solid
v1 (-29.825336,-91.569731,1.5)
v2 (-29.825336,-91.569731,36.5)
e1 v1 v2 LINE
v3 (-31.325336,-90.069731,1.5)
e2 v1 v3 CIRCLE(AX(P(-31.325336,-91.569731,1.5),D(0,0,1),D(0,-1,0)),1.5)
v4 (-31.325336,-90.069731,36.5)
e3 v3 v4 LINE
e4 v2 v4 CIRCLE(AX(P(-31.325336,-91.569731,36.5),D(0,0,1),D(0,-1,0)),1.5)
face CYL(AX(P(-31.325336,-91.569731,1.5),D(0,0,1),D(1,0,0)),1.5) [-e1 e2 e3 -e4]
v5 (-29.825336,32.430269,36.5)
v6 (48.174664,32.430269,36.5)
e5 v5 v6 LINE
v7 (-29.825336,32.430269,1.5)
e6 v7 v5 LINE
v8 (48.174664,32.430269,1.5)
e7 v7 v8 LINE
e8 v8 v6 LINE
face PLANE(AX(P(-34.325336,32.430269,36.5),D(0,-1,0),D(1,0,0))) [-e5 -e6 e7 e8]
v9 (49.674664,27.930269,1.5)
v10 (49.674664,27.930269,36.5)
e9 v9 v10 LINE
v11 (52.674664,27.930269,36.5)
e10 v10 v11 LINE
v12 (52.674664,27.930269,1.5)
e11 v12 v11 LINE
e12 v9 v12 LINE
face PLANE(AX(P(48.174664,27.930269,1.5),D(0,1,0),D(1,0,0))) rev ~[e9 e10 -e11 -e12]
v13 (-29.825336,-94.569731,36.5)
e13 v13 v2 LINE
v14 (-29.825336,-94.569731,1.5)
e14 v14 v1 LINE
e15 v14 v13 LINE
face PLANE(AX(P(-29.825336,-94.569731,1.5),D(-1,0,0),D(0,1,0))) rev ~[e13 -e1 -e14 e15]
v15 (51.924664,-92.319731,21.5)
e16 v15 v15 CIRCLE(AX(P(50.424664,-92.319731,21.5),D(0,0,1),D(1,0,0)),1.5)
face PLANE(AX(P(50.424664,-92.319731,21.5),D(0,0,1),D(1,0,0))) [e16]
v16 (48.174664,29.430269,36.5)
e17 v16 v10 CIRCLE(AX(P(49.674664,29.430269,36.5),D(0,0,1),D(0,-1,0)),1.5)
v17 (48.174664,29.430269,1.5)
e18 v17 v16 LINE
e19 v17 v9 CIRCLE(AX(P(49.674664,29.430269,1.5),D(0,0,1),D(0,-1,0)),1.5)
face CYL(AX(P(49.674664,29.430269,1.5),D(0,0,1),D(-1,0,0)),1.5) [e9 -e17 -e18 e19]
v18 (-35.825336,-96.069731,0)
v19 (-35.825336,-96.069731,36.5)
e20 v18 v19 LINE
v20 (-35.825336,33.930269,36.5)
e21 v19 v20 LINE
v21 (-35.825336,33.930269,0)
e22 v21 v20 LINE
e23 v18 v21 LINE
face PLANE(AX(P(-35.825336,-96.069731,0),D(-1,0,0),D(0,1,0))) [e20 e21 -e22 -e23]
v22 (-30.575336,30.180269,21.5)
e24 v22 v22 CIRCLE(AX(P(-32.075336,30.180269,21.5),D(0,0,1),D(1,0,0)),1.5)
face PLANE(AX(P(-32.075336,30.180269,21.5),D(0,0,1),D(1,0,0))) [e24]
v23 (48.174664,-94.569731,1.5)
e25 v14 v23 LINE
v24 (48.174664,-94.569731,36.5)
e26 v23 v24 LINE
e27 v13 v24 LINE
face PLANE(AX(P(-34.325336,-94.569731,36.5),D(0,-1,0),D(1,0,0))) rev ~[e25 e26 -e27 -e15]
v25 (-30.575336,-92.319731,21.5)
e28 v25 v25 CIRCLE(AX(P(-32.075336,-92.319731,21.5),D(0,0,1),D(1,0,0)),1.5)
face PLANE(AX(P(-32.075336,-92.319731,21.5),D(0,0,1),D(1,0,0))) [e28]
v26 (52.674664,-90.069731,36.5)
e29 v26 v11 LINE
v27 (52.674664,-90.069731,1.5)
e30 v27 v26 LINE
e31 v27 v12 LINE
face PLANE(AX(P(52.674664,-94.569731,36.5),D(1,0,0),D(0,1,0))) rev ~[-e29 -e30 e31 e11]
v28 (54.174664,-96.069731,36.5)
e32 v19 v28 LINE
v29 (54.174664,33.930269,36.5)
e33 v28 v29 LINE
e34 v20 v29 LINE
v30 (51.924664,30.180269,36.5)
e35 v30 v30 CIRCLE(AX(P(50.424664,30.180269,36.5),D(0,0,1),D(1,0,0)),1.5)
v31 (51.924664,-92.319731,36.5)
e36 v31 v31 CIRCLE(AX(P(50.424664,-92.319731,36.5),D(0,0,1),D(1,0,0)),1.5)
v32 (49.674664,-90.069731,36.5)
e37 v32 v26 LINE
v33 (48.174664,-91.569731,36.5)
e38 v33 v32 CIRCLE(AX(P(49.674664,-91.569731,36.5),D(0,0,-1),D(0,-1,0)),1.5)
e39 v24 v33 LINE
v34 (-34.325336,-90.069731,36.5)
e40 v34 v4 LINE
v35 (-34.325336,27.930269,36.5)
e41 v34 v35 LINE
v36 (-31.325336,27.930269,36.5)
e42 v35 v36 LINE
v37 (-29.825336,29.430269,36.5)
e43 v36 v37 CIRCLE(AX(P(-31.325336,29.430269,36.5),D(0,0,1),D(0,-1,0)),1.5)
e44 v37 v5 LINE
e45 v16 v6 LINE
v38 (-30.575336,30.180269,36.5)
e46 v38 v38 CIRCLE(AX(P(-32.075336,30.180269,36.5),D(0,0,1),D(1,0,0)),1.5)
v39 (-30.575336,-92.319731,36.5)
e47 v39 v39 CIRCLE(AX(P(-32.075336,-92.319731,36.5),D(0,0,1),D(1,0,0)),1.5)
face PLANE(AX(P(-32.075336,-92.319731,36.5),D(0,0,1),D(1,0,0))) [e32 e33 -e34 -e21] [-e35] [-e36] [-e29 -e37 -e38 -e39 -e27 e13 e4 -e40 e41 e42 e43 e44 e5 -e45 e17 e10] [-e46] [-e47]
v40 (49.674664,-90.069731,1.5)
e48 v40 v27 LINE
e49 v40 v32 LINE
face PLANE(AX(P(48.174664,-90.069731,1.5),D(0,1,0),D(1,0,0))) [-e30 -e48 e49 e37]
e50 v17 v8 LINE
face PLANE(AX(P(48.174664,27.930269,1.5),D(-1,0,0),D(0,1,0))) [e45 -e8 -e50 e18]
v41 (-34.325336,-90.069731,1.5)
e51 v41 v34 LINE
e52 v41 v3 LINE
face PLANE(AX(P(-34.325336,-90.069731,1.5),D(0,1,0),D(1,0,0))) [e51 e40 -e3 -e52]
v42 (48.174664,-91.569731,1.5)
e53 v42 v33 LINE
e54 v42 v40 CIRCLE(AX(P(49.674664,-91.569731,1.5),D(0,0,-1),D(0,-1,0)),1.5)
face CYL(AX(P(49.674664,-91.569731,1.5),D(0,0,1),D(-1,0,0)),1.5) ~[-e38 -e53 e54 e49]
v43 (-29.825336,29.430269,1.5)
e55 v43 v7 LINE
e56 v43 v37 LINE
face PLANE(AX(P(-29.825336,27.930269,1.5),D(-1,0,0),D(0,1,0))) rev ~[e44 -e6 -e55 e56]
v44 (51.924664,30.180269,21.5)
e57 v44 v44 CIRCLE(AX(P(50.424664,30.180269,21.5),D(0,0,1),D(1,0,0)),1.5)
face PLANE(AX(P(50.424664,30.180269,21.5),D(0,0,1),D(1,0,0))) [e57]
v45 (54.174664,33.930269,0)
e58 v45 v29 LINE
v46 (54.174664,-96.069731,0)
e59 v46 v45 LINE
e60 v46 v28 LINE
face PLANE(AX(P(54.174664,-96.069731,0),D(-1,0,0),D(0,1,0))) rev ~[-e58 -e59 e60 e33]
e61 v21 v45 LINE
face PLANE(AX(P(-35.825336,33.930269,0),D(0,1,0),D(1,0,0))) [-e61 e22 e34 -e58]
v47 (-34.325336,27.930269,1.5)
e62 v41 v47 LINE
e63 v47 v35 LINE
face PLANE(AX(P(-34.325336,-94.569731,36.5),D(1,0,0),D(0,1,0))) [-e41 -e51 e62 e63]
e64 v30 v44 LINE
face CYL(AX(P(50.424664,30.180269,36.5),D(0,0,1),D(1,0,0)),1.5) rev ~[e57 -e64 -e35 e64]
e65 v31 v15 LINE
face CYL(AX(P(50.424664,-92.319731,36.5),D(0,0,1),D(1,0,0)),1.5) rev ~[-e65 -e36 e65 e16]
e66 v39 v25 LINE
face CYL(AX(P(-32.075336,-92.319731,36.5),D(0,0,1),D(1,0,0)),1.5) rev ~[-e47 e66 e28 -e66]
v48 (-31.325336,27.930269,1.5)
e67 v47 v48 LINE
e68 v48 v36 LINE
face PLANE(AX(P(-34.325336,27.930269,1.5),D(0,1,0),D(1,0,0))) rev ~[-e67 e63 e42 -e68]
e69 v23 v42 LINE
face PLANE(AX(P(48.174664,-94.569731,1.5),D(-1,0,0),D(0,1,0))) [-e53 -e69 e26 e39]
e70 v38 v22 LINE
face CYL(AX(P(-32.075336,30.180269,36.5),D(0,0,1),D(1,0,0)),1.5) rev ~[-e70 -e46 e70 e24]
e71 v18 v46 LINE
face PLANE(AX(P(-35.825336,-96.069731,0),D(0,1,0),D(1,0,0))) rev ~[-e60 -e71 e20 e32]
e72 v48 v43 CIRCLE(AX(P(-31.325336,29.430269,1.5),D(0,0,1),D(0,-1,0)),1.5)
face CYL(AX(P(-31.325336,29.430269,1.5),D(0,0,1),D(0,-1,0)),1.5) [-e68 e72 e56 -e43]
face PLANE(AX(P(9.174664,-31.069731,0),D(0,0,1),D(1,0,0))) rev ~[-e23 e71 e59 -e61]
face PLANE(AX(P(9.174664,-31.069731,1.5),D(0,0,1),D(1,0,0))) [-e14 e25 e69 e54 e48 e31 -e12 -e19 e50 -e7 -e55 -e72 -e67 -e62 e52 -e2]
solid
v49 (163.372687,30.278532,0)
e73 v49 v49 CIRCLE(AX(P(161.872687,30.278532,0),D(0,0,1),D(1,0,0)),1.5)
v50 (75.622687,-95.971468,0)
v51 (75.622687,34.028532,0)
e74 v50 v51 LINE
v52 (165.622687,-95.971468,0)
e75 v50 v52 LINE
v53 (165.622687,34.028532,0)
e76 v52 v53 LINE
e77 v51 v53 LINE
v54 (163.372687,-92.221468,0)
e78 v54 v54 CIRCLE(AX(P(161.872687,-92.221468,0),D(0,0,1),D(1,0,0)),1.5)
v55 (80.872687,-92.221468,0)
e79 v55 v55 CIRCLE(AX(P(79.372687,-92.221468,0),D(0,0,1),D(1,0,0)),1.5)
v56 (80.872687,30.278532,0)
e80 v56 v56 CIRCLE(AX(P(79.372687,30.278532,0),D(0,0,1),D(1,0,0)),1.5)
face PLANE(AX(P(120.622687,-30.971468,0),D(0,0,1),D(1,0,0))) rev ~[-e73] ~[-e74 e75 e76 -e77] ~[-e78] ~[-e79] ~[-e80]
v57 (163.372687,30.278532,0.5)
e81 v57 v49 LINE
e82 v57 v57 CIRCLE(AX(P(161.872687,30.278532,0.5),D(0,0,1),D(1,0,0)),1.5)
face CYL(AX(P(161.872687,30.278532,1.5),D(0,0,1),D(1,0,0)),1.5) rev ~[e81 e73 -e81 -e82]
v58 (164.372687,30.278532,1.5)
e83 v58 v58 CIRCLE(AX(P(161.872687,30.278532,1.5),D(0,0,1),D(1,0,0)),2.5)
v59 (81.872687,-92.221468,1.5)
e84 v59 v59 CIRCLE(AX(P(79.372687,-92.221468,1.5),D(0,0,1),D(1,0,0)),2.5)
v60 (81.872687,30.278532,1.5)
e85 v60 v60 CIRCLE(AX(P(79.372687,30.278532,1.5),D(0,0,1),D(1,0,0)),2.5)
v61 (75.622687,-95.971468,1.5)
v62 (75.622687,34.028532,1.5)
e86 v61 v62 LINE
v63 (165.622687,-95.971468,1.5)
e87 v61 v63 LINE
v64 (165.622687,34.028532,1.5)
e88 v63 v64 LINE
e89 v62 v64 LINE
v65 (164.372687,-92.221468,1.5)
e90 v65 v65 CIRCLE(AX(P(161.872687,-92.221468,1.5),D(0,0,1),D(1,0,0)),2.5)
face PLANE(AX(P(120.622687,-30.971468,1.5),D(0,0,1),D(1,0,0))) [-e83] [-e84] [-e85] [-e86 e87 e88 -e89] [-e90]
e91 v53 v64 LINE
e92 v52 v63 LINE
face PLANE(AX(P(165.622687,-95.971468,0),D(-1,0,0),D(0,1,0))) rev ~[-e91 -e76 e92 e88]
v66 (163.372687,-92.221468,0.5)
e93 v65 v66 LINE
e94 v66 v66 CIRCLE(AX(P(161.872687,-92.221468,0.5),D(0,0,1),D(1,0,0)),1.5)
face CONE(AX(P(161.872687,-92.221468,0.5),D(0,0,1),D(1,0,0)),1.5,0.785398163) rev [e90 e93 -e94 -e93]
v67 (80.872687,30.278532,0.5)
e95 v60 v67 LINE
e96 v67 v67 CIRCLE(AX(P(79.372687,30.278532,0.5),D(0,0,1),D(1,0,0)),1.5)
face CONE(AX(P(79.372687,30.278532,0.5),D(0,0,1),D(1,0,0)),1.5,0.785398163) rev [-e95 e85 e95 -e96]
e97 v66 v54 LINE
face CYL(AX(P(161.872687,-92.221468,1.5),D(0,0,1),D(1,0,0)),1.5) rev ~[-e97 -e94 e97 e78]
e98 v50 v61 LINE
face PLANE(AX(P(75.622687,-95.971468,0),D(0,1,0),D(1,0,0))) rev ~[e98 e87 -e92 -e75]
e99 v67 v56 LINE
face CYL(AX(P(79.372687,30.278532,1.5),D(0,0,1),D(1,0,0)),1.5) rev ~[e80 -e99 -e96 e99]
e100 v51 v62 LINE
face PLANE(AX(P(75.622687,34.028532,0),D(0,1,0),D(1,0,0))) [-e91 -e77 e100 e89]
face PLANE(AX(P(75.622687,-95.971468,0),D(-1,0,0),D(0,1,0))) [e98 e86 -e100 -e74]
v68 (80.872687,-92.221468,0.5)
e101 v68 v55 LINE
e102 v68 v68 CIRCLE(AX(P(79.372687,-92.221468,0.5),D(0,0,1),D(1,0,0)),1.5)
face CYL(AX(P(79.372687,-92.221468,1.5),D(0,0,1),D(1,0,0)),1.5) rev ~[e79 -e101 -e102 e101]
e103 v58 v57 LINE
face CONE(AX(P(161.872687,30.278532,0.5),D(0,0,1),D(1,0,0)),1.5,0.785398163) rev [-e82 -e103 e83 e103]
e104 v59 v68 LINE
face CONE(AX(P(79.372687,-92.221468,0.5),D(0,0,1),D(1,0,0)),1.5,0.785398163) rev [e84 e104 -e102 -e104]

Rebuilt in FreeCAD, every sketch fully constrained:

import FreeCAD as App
import Part
import Sketcher
from FreeCAD import Vector


def edges_at(feature, points):
    """Names of the edges that pass closest to the given points."""
    edges = feature.Shape.Edges
    near = lambda p: min(range(len(edges)), key=lambda i: edges[i].distToShape(Part.Vertex(*p))[0])
    return sorted({f"Edge{near(p) + 1}" for p in points})


def add_polygon(sketch, points):
    """Adds a closed chain of lines whose ends are joined by coincident constraints."""
    first, n = sketch.GeometryCount, len(points)
    for a, b in zip(points, points[1:] + points[:1]):
        sketch.addGeometry(Part.LineSegment(App.Vector(*a, 0), App.Vector(*b, 0)), False)
    for i in range(n):
        sketch.addConstraint(Sketcher.Constraint("Coincident", first + i, 2, first + (i + 1) % n, 1))

doc = App.newDocument("Part")
body = doc.addObject("PartDesign::Body", "Body")

# Sketch on XY plane
sketch1 = body.newObject("Sketcher::SketchObject", "Sketch")
sketch1.AttachmentSupport = (doc.getObject("XY_Plane"), [""])
sketch1.MapMode = "FlatFace"
add_polygon(sketch1, [(-35.825336, 33.930269), (-35.825336, -96.069731), (54.174664, -96.069731), (54.174664, 33.930269)])  # lines 0-3
sketch1.addConstraint(Sketcher.Constraint("Vertical", 0))
sketch1.addConstraint(Sketcher.Constraint("Horizontal", 1))
sketch1.addConstraint(Sketcher.Constraint("Vertical", 2))
sketch1.addConstraint(Sketcher.Constraint("Horizontal", 3))
sketch1.addConstraint(Sketcher.Constraint("DistanceX", 1, 1, 1, 2, 90.0))
sketch1.addConstraint(Sketcher.Constraint("DistanceY", 0, 2, 0, 1, 130.0))
sketch1.addConstraint(Sketcher.Constraint("DistanceY", 0, 2, -1, 1, 96.069731))
sketch1.addConstraint(Sketcher.Constraint("DistanceX", 0, 2, -1, 1, 35.825336))
pad1 = body.newObject("PartDesign::Pad", "Pad")
pad1.Profile = sketch1
pad1.Length = 36.5

# Sketch on XY plane
sketch2 = body.newObject("Sketcher::SketchObject", "Sketch001")
sketch2.AttachmentSupport = (doc.getObject("XY_Plane"), [""])
sketch2.MapMode = "FlatFace"
sketch2.AttachmentOffset = App.Placement(Vector(0, 0, 36.5), App.Rotation())
add_polygon(sketch2, [(-34.325336, 32.430269), (-34.325336, -94.569731), (52.674664, -94.569731), (52.674664, 32.430269)])  # lines 0-3
sketch2.addConstraint(Sketcher.Constraint("Vertical", 0))
sketch2.addConstraint(Sketcher.Constraint("Horizontal", 1))
sketch2.addConstraint(Sketcher.Constraint("Vertical", 2))
sketch2.addConstraint(Sketcher.Constraint("Horizontal", 3))
sketch2.addConstraint(Sketcher.Constraint("DistanceX", 1, 1, 1, 2, 87.0))
sketch2.addConstraint(Sketcher.Constraint("DistanceY", 0, 2, 0, 1, 127.0))
sketch2.addConstraint(Sketcher.Constraint("DistanceY", 0, 2, -1, 1, 94.569731))
sketch2.addConstraint(Sketcher.Constraint("DistanceX", 0, 2, -1, 1, 34.325336))
pocket1 = body.newObject("PartDesign::Pocket", "Pocket")
pocket1.Profile = sketch2
pocket1.Length = 35

# Sketch on XY plane
sketch3 = body.newObject("Sketcher::SketchObject", "Sketch002")
sketch3.AttachmentSupport = (doc.getObject("XY_Plane"), [""])
sketch3.MapMode = "FlatFace"
sketch3.AttachmentOffset = App.Placement(Vector(0, 0, 1.5), App.Rotation())
add_polygon(sketch3, [(-34.325336, -90.069731), (-34.325336, -94.569731), (-29.825336, -94.569731), (-29.825336, -90.069731)])  # lines 0-3
add_polygon(sketch3, [(48.174664, -90.069731), (48.174664, -94.569731), (52.674664, -94.569731), (52.674664, -90.069731)])  # lines 4-7
add_polygon(sketch3, [(48.174664, 32.430269), (48.174664, 27.930269), (52.674664, 27.930269), (52.674664, 32.430269)])  # lines 8-11
add_polygon(sketch3, [(-34.325336, 32.430269), (-34.325336, 27.930269), (-29.825336, 27.930269), (-29.825336, 32.430269)])  # lines 12-15
sketch3.addConstraint(Sketcher.Constraint("Vertical", 0))
sketch3.addConstraint(Sketcher.Constraint("Horizontal", 1))
sketch3.addConstraint(Sketcher.Constraint("Vertical", 2))
sketch3.addConstraint(Sketcher.Constraint("Horizontal", 3))
sketch3.addConstraint(Sketcher.Constraint("Vertical", 4))
sketch3.addConstraint(Sketcher.Constraint("Horizontal", 5))
sketch3.addConstraint(Sketcher.Constraint("Vertical", 6))
sketch3.addConstraint(Sketcher.Constraint("Horizontal", 7))
sketch3.addConstraint(Sketcher.Constraint("Vertical", 8))
sketch3.addConstraint(Sketcher.Constraint("Horizontal", 9))
sketch3.addConstraint(Sketcher.Constraint("Vertical", 10))
sketch3.addConstraint(Sketcher.Constraint("Horizontal", 11))
sketch3.addConstraint(Sketcher.Constraint("Vertical", 12))
sketch3.addConstraint(Sketcher.Constraint("Horizontal", 13))
sketch3.addConstraint(Sketcher.Constraint("Vertical", 14))
sketch3.addConstraint(Sketcher.Constraint("Horizontal", 15))
sketch3.addConstraint(Sketcher.Constraint("Horizontal", 1, 2, 4, 2))
sketch3.addConstraint(Sketcher.Constraint("Horizontal", 3, 2, 6, 2))
sketch3.addConstraint(Sketcher.Constraint("Horizontal", 9, 2, 12, 2))
sketch3.addConstraint(Sketcher.Constraint("Horizontal", 11, 2, 14, 2))
sketch3.addConstraint(Sketcher.Constraint("Vertical", 7, 2, 8, 2))
sketch3.addConstraint(Sketcher.Constraint("Vertical", 6, 2, 9, 2))
sketch3.addConstraint(Sketcher.Constraint("Vertical", 3, 2, 12, 2))
sketch3.addConstraint(Sketcher.Constraint("Vertical", 2, 2, 13, 2))
sketch3.addConstraint(Sketcher.Constraint("Equal", 3, 5))
sketch3.addConstraint(Sketcher.Constraint("Equal", 15, 0))
sketch3.addConstraint(Sketcher.Constraint("Equal", 6, 8))
sketch3.addConstraint(Sketcher.Constraint("DistanceX", 1, 1, 1, 2, 4.5))
sketch3.addConstraint(Sketcher.Constraint("DistanceX", 1, 2, 4, 2, 78.0))
sketch3.addConstraint(Sketcher.Constraint("DistanceY", 7, 2, 8, 2, 118.0))
sketch3.addConstraint(Sketcher.Constraint("DistanceY", 0, 2, -1, 1, 94.569731))
sketch3.addConstraint(Sketcher.Constraint("DistanceX", 0, 2, -1, 1, 34.325336))
pad2 = body.newObject("PartDesign::Pad", "Pad001")
pad2.Profile = sketch3
pad2.Length = 35

# Sketch on XY plane
sketch4 = body.newObject("Sketcher::SketchObject", "Sketch003")
sketch4.AttachmentSupport = (doc.getObject("XY_Plane"), [""])
sketch4.MapMode = "FlatFace"
sketch4.AttachmentOffset = App.Placement(Vector(0, 0, 36.5), App.Rotation())
sketch4.addGeometry(Part.Circle(Vector(50.424664, 30.180269, 0), Vector(0, 0, 1), 1.5), False)
sketch4.addGeometry(Part.Circle(Vector(-32.075336, 30.180269, 0), Vector(0, 0, 1), 1.5), False)
sketch4.addGeometry(Part.Circle(Vector(-32.075336, -92.319731, 0), Vector(0, 0, 1), 1.5), False)
sketch4.addGeometry(Part.Circle(Vector(50.424664, -92.319731, 0), Vector(0, 0, 1), 1.5), False)
sketch4.addConstraint(Sketcher.Constraint("Equal", 0, 1))
sketch4.addConstraint(Sketcher.Constraint("Equal", 1, 2))
sketch4.addConstraint(Sketcher.Constraint("Equal", 2, 3))
sketch4.addConstraint(Sketcher.Constraint("Horizontal", 0, 3, 1, 3))
sketch4.addConstraint(Sketcher.Constraint("Horizontal", 2, 3, 3, 3))
sketch4.addConstraint(Sketcher.Constraint("Vertical", 1, 3, 2, 3))
sketch4.addConstraint(Sketcher.Constraint("Vertical", 0, 3, 3, 3))
sketch4.addConstraint(Sketcher.Constraint("Diameter", 0, 3.0))
sketch4.addConstraint(Sketcher.Constraint("DistanceX", 1, 3, 0, 3, 82.5))
sketch4.addConstraint(Sketcher.Constraint("DistanceY", 2, 3, 1, 3, 122.5))
sketch4.addConstraint(Sketcher.Constraint("DistanceY", -1, 1, 0, 3, 30.180269))
sketch4.addConstraint(Sketcher.Constraint("DistanceX", -1, 1, 0, 3, 50.424664))
pocket2 = body.newObject("PartDesign::Pocket", "Pocket001")
pocket2.Profile = sketch4
pocket2.Length = 15
doc.recompute()

fillet = body.newObject("PartDesign::Fillet", "Fillet")
fillet.Base = (pocket2, edges_at(pocket2, [(-29.825, -90.07, 19)]))
fillet.Radius = 1.5
doc.recompute()

fillet2 = body.newObject("PartDesign::Fillet", "Fillet001")
fillet2.Base = (fillet, edges_at(fillet, [(48.175, -90.07, 19)]))
fillet2.Radius = 1.5
doc.recompute()

fillet3 = body.newObject("PartDesign::Fillet", "Fillet002")
fillet3.Base = (fillet2, edges_at(fillet2, [(-29.825, 27.93, 19)]))
fillet3.Radius = 1.5
doc.recompute()

fillet4 = body.newObject("PartDesign::Fillet", "Fillet003")
fillet4.Base = (fillet3, edges_at(fillet3, [(48.175, 27.93, 19)]))
fillet4.Radius = 1.5
body2 = doc.addObject("PartDesign::Body", "Body001")

# Sketch on XY plane
sketch5 = body2.newObject("Sketcher::SketchObject", "Sketch004")
sketch5.AttachmentSupport = (doc.getObject("XY_Plane001"), [""])
sketch5.MapMode = "FlatFace"
add_polygon(sketch5, [(75.622687, 34.028532), (75.622687, -95.971468), (165.622687, -95.971468), (165.622687, 34.028532)])  # lines 0-3
sketch5.addConstraint(Sketcher.Constraint("Vertical", 0))
sketch5.addConstraint(Sketcher.Constraint("Horizontal", 1))
sketch5.addConstraint(Sketcher.Constraint("Vertical", 2))
sketch5.addConstraint(Sketcher.Constraint("Horizontal", 3))
sketch5.addConstraint(Sketcher.Constraint("DistanceX", 1, 1, 1, 2, 90.0))
sketch5.addConstraint(Sketcher.Constraint("DistanceY", 0, 2, 0, 1, 130.0))
sketch5.addConstraint(Sketcher.Constraint("DistanceY", 0, 2, -1, 1, 95.971468))
sketch5.addConstraint(Sketcher.Constraint("DistanceX", -1, 1, 0, 2, 75.622687))
pad3 = body2.newObject("PartDesign::Pad", "Pad002")
pad3.Profile = sketch5
pad3.Length = 1.5

# Sketch on XY plane
sketch6 = body2.newObject("Sketcher::SketchObject", "Sketch005")
sketch6.AttachmentSupport = (doc.getObject("XY_Plane001"), [""])
sketch6.MapMode = "FlatFace"
sketch6.AttachmentOffset = App.Placement(Vector(0, 0, 1.5), App.Rotation())
sketch6.addGeometry(Part.Circle(Vector(79.372687, 30.278532, 0), Vector(0, 0, 1), 1.5), False)
sketch6.addGeometry(Part.Circle(Vector(79.372687, -92.221468, 0), Vector(0, 0, 1), 1.5), False)
sketch6.addGeometry(Part.Circle(Vector(161.872687, -92.221468, 0), Vector(0, 0, 1), 1.5), False)
sketch6.addGeometry(Part.Circle(Vector(161.872687, 30.278532, 0), Vector(0, 0, 1), 1.5), False)
sketch6.addConstraint(Sketcher.Constraint("Equal", 0, 1))
sketch6.addConstraint(Sketcher.Constraint("Equal", 1, 2))
sketch6.addConstraint(Sketcher.Constraint("Equal", 2, 3))
sketch6.addConstraint(Sketcher.Constraint("Horizontal", 1, 3, 2, 3))
sketch6.addConstraint(Sketcher.Constraint("Horizontal", 0, 3, 3, 3))
sketch6.addConstraint(Sketcher.Constraint("Vertical", 0, 3, 1, 3))
sketch6.addConstraint(Sketcher.Constraint("Vertical", 2, 3, 3, 3))
sketch6.addConstraint(Sketcher.Constraint("Diameter", 0, 3.0))
sketch6.addConstraint(Sketcher.Constraint("DistanceY", 1, 3, 0, 3, 122.5))
sketch6.addConstraint(Sketcher.Constraint("DistanceX", 1, 3, 2, 3, 82.5))
sketch6.addConstraint(Sketcher.Constraint("DistanceY", -1, 1, 0, 3, 30.278532))
sketch6.addConstraint(Sketcher.Constraint("DistanceX", -1, 1, 0, 3, 79.372687))
pocket3 = body2.newObject("PartDesign::Pocket", "Pocket002")
pocket3.Profile = sketch6
pocket3.Length = 1.5
doc.recompute()

chamfer = body2.newObject("PartDesign::Chamfer", "Chamfer")
chamfer.Base = (pocket3, edges_at(pocket3, [(77.873, -92.221, 1.5)]))
chamfer.Size = 1
doc.recompute()

chamfer2 = body2.newObject("PartDesign::Chamfer", "Chamfer001")
chamfer2.Base = (chamfer, edges_at(chamfer, [(160.373, -92.221, 1.5)]))
chamfer2.Size = 1
doc.recompute()

chamfer3 = body2.newObject("PartDesign::Chamfer", "Chamfer002")
chamfer3.Base = (chamfer2, edges_at(chamfer2, [(160.373, 30.279, 1.5)]))
chamfer3.Size = 1
doc.recompute()

chamfer4 = body2.newObject("PartDesign::Chamfer", "Chamfer003")
chamfer4.Base = (chamfer3, edges_at(chamfer3, [(77.873, 30.279, 1.5)]))
chamfer4.Size = 1

doc.recompute()
